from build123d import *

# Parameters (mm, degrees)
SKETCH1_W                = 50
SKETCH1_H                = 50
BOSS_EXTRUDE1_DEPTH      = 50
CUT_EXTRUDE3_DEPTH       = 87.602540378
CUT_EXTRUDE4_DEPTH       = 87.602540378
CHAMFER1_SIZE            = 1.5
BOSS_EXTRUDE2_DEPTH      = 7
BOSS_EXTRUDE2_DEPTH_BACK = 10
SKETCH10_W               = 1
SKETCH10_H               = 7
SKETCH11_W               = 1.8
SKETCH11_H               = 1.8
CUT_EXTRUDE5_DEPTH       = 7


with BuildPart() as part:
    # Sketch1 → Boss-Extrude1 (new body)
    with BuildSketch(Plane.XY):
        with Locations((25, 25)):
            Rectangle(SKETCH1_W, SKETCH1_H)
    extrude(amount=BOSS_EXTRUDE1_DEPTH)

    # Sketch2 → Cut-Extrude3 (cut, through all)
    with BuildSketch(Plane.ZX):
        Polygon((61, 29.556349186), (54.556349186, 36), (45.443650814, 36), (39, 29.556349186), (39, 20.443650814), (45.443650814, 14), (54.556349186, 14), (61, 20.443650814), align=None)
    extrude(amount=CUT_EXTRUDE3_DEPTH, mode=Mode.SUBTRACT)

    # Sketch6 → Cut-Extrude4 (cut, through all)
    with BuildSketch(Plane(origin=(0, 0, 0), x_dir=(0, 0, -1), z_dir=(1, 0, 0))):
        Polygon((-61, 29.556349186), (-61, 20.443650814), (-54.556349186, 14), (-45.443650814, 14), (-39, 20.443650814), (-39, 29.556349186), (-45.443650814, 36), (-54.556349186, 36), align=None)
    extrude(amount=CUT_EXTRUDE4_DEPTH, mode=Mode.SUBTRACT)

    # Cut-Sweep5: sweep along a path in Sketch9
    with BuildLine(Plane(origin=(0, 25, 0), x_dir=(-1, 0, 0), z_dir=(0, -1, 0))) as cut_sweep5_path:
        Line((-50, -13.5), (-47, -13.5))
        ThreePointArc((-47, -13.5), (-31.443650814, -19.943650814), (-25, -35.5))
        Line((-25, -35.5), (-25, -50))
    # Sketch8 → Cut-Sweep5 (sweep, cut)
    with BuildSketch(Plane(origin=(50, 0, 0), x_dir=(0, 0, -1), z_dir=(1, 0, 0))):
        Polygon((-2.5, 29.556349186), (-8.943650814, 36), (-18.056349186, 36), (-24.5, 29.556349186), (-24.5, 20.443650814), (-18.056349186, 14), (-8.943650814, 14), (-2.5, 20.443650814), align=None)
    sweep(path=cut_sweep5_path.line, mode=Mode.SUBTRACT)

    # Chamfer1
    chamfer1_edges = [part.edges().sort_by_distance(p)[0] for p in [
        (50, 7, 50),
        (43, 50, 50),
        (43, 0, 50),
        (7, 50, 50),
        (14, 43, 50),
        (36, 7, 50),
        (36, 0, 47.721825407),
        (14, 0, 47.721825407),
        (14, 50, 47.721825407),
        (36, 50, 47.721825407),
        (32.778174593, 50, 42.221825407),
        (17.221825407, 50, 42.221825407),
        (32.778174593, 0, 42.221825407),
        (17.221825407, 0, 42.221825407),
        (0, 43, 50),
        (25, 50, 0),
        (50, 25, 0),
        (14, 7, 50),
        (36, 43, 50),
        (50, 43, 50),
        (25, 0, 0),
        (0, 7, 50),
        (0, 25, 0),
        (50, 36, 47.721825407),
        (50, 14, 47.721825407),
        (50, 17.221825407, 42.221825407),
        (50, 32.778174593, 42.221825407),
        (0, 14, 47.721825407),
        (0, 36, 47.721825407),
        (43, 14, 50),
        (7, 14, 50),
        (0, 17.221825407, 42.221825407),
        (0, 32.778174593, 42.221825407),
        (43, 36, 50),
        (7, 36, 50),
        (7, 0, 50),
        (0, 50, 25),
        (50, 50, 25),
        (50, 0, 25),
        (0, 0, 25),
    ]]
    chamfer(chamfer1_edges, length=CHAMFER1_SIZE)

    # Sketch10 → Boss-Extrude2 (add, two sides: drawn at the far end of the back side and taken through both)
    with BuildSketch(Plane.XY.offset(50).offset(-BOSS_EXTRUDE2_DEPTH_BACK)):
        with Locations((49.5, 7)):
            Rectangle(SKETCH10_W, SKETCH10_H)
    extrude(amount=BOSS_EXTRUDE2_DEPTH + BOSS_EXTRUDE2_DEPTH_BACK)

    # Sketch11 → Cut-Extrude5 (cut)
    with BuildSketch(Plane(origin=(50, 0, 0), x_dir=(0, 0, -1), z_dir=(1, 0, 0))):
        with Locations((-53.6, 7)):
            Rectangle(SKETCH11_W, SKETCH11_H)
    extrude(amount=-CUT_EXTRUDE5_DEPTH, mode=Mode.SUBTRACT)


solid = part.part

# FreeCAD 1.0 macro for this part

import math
import FreeCAD as App
import Part
import Sketcher

V = App.Vector
Q = App.Units.Quantity


def edges_at(feature, points):
    """Names of the edges that pass closest to the given points."""
    edges = feature.Shape.Edges
    near = lambda p: min(range(len(edges)), key=lambda i: edges[i].distToShape(Part.Vertex(*p))[0])
    return sorted({f"Edge{near(p) + 1}" for p in points})

doc = App.newDocument("Part")
params = doc.addObject("Spreadsheet::Sheet", "Params")
for row, (alias, value) in enumerate([
    ("sketch1_width", "50 mm"),
    ("pad1_length", "50 mm"),
    ("sketch5_radius", "22 mm"),
    ("sketch5_width", "3 mm"),
    ("sketch5_height", "14.5 mm"),
    ("chamfer_size", "1.5 mm"),
    ("sketch6_width", "1 mm"),
    ("sketch6_height", "7 mm"),
    ("pad2_length", "7 mm"),
    ("pad2_length2", "10 mm"),
    ("sketch7_width", "1.8 mm"),
    ("pocket3_length", "7 mm"),
], start=1):
    params.set(f"A{row}", alias)
    params.set(f"B{row}", "=" + value)
    params.setAlias(f"B{row}", alias)

body = doc.addObject("PartDesign::Body", "Body")

sketch1 = doc.addObject("Sketcher::SketchObject", "Sketch")
body.addObject(sketch1)
sketch1.AttachmentSupport = (doc.XY_Plane, [""])
sketch1.MapMode = "FlatFace"
sketch1.addGeometry([
    Part.LineSegment(V(0, 50, 0), V(0, 0, 0)),
    Part.LineSegment(V(0, 0, 0), V(50, 0, 0)),
    Part.LineSegment(V(50, 0, 0), V(50, 50, 0)),
    Part.LineSegment(V(50, 50, 0), V(0, 50, 0)),
], False)
sketch1.addConstraint([
    Sketcher.Constraint("Coincident", 0, 2, 1, 1),
    Sketcher.Constraint("Coincident", 1, 2, 2, 1),
    Sketcher.Constraint("Coincident", 2, 2, 3, 1),
    Sketcher.Constraint("Coincident", 3, 2, 0, 1),
    Sketcher.Constraint("Vertical", 0),
    Sketcher.Constraint("Horizontal", 1),
    Sketcher.Constraint("Vertical", 2),
    Sketcher.Constraint("Horizontal", 3),
    Sketcher.Constraint("Coincident", 0, 2, -1, 1),
    Sketcher.Constraint("Equal", 3, 0),
    Sketcher.Constraint("DistanceX", 1, 1, 1, 2, Q("50 mm")),
])
sketch1.setExpression("Constraints[10]", "Params.sketch1_width")
pad1 = doc.addObject("PartDesign::Pad", "Pad")
body.addObject(pad1)
pad1.Profile = sketch1
pad1.setExpression("Length", "Params.pad1_length")

sketch2 = doc.addObject("Sketcher::SketchObject", "Sketch001")
body.addObject(sketch2)
sketch2.AttachmentSupport = (doc.XZ_Plane, [""])
sketch2.MapMode = "FlatFace"
sketch2.addGeometry([
    Part.LineSegment(V(29.556349, 61, 0), V(36, 54.556349, 0)),
    Part.LineSegment(V(36, 54.556349, 0), V(36, 45.443651, 0)),
    Part.LineSegment(V(36, 45.443651, 0), V(29.556349, 39, 0)),
    Part.LineSegment(V(29.556349, 39, 0), V(20.443651, 39, 0)),
    Part.LineSegment(V(20.443651, 39, 0), V(14, 45.443651, 0)),
    Part.LineSegment(V(14, 45.443651, 0), V(14, 54.556349, 0)),
    Part.LineSegment(V(14, 54.556349, 0), V(20.443651, 61, 0)),
    Part.LineSegment(V(20.443651, 61, 0), V(29.556349, 61, 0)),
], False)
sketch2.addConstraint([
    Sketcher.Constraint("Coincident", 0, 2, 1, 1),
    Sketcher.Constraint("Coincident", 1, 2, 2, 1),
    Sketcher.Constraint("Coincident", 2, 2, 3, 1),
    Sketcher.Constraint("Coincident", 3, 2, 4, 1),
    Sketcher.Constraint("Coincident", 4, 2, 5, 1),
    Sketcher.Constraint("Coincident", 5, 2, 6, 1),
    Sketcher.Constraint("Coincident", 6, 2, 7, 1),
    Sketcher.Constraint("Coincident", 7, 2, 0, 1),
    Sketcher.Constraint("Vertical", 1),
    Sketcher.Constraint("Horizontal", 3),
    Sketcher.Constraint("Vertical", 5),
    Sketcher.Constraint("Horizontal", 7),
    Sketcher.Constraint("Perpendicular", 0, 2),
    Sketcher.Constraint("Perpendicular", 2, 4),
    Sketcher.Constraint("Perpendicular", 4, 6),
    Sketcher.Constraint("Horizontal", 1, 2, 4, 2),
    Sketcher.Constraint("Horizontal", 0, 2, 5, 2),
    Sketcher.Constraint("Vertical", 3, 2, 6, 2),
    Sketcher.Constraint("Vertical", 2, 2, 7, 2),
    Sketcher.Constraint("Equal", 7, 1),
    Sketcher.Constraint("DistanceX", -1, 1, 0, 2, Q("36 mm")),
    Sketcher.Constraint("DistanceY", -1, 1, 2, 2, Q("39 mm")),
    Sketcher.Constraint("DistanceX", -1, 1, 4, 2, Q("14 mm")),
    Sketcher.Constraint("DistanceX", 3, 2, 3, 1, Q("9.112698 mm")),
])
pocket1 = doc.addObject("PartDesign::Pocket", "Pocket")
body.addObject(pocket1)
pocket1.Profile = sketch2
pocket1.Type = "ThroughAll"

sketch3 = doc.addObject("Sketcher::SketchObject", "Sketch002")
body.addObject(sketch3)
sketch3.AttachmentSupport = (doc.YZ_Plane, [""])
sketch3.MapMode = "FlatFace"
sketch3.addGeometry([
    Part.LineSegment(V(29.556349, 61, 0), V(20.443651, 61, 0)),
    Part.LineSegment(V(20.443651, 61, 0), V(14, 54.556349, 0)),
    Part.LineSegment(V(14, 54.556349, 0), V(14, 45.443651, 0)),
    Part.LineSegment(V(14, 45.443651, 0), V(20.443651, 39, 0)),
    Part.LineSegment(V(20.443651, 39, 0), V(29.556349, 39, 0)),
    Part.LineSegment(V(29.556349, 39, 0), V(36, 45.443651, 0)),
    Part.LineSegment(V(36, 45.443651, 0), V(36, 54.556349, 0)),
    Part.LineSegment(V(36, 54.556349, 0), V(29.556349, 61, 0)),
], False)
sketch3.addConstraint([
    Sketcher.Constraint("Coincident", 0, 2, 1, 1),
    Sketcher.Constraint("Coincident", 1, 2, 2, 1),
    Sketcher.Constraint("Coincident", 2, 2, 3, 1),
    Sketcher.Constraint("Coincident", 3, 2, 4, 1),
    Sketcher.Constraint("Coincident", 4, 2, 5, 1),
    Sketcher.Constraint("Coincident", 5, 2, 6, 1),
    Sketcher.Constraint("Coincident", 6, 2, 7, 1),
    Sketcher.Constraint("Coincident", 7, 2, 0, 1),
    Sketcher.Constraint("Horizontal", 0),
    Sketcher.Constraint("Vertical", 2),
    Sketcher.Constraint("Horizontal", 4),
    Sketcher.Constraint("Vertical", 6),
    Sketcher.Constraint("Perpendicular", 1, 3),
    Sketcher.Constraint("Perpendicular", 3, 5),
    Sketcher.Constraint("Perpendicular", 5, 7),
    Sketcher.Constraint("Horizontal", 2, 2, 5, 2),
    Sketcher.Constraint("Horizontal", 1, 2, 6, 2),
    Sketcher.Constraint("Vertical", 0, 2, 3, 2),
    Sketcher.Constraint("Vertical", 4, 2, 7, 2),
    Sketcher.Constraint("Equal", 4, 2),
    Sketcher.Constraint("DistanceY", -1, 1, 0, 2, Q("61 mm")),
    Sketcher.Constraint("DistanceX", -1, 1, 1, 2, Q("14 mm")),
    Sketcher.Constraint("DistanceY", -1, 1, 3, 2, Q("39 mm")),
    Sketcher.Constraint("DistanceX", 0, 2, 0, 1, Q("9.112698 mm")),
])
pocket2 = doc.addObject("PartDesign::Pocket", "Pocket001")
body.addObject(pocket2)
pocket2.Profile = sketch3
pocket2.Type = "ThroughAll"
pocket2.Reversed = True

sketch4 = doc.addObject("Sketcher::SketchObject", "Sketch003")
body.addObject(sketch4)
sketch4.AttachmentSupport = (doc.YZ_Plane, [""])
sketch4.MapMode = "FlatFace"
sketch4.AttachmentOffset = App.Placement(V(0, 0, 50), App.Rotation())
sketch4.addGeometry([
    Part.LineSegment(V(29.556349, 2.5, 0), V(36, 8.943651, 0)),
    Part.LineSegment(V(36, 8.943651, 0), V(36, 18.056349, 0)),
    Part.LineSegment(V(36, 18.056349, 0), V(29.556349, 24.5, 0)),
    Part.LineSegment(V(29.556349, 24.5, 0), V(20.443651, 24.5, 0)),
    Part.LineSegment(V(20.443651, 24.5, 0), V(14, 18.056349, 0)),
    Part.LineSegment(V(14, 18.056349, 0), V(14, 8.943651, 0)),
    Part.LineSegment(V(14, 8.943651, 0), V(20.443651, 2.5, 0)),
    Part.LineSegment(V(20.443651, 2.5, 0), V(29.556349, 2.5, 0)),
], False)
sketch4.addConstraint([
    Sketcher.Constraint("Coincident", 0, 2, 1, 1),
    Sketcher.Constraint("Coincident", 1, 2, 2, 1),
    Sketcher.Constraint("Coincident", 2, 2, 3, 1),
    Sketcher.Constraint("Coincident", 3, 2, 4, 1),
    Sketcher.Constraint("Coincident", 4, 2, 5, 1),
    Sketcher.Constraint("Coincident", 5, 2, 6, 1),
    Sketcher.Constraint("Coincident", 6, 2, 7, 1),
    Sketcher.Constraint("Coincident", 7, 2, 0, 1),
    Sketcher.Constraint("Vertical", 1),
    Sketcher.Constraint("Horizontal", 3),
    Sketcher.Constraint("Vertical", 5),
    Sketcher.Constraint("Horizontal", 7),
    Sketcher.Constraint("Perpendicular", 0, 2),
    Sketcher.Constraint("Perpendicular", 2, 4),
    Sketcher.Constraint("Perpendicular", 4, 6),
    Sketcher.Constraint("Horizontal", 1, 2, 4, 2),
    Sketcher.Constraint("Horizontal", 0, 2, 5, 2),
    Sketcher.Constraint("Vertical", 3, 2, 6, 2),
    Sketcher.Constraint("Vertical", 2, 2, 7, 2),
    Sketcher.Constraint("Equal", 7, 1),
    Sketcher.Constraint("DistanceX", -1, 1, 0, 2, Q("36 mm")),
    Sketcher.Constraint("DistanceX", -1, 1, 4, 2, Q("14 mm")),
    Sketcher.Constraint("DistanceY", -1, 1, 2, 2, Q("24.5 mm")),
    Sketcher.Constraint("DistanceX", 3, 2, 3, 1, Q("9.112698 mm")),
])

sketch5 = doc.addObject("Sketcher::SketchObject", "Sketch004")
body.addObject(sketch5)
sketch5.AttachmentSupport = (doc.XZ_Plane, [""])
sketch5.MapMode = "FlatFace"
sketch5.AttachmentOffset = App.Placement(V(0, 0, -25), App.Rotation())
sketch5.addGeometry([
    Part.LineSegment(V(50, 13.5, 0), V(47, 13.5, 0)),
    Part.ArcOfCircle(Part.Circle(V(47, 35.5, 0), V(0, 0, 1), 22), math.radians(180), math.radians(270)),
    Part.LineSegment(V(25, 35.5, 0), V(25, 50, 0)),
], False)
sketch5.addConstraint([
    Sketcher.Constraint("Tangent", 0, 2, 1, 2),
    Sketcher.Constraint("Tangent", 1, 1, 2, 1),
    Sketcher.Constraint("Horizontal", 0),
    Sketcher.Constraint("Vertical", 2),
    Sketcher.Constraint("Radius", 1, Q("22 mm")),
    Sketcher.Constraint("DistanceX", 0, 2, 0, 1, Q("3 mm")),
    Sketcher.Constraint("DistanceY", 2, 1, 2, 2, Q("14.5 mm")),
    Sketcher.Constraint("DistanceX", -1, 1, 1, 3, Q("47 mm")),
    Sketcher.Constraint("DistanceY", -1, 1, 2, 2, Q("50 mm")),
])
sketch5.setExpression("Constraints[4]", "Params.sketch5_radius")
sketch5.setExpression("Constraints[5]", "Params.sketch5_width")
sketch5.setExpression("Constraints[6]", "Params.sketch5_height")
doc.recompute()

subtractivepipe = doc.addObject("PartDesign::SubtractivePipe", "SubtractivePipe")
body.addObject(subtractivepipe)
subtractivepipe.Profile = sketch4
subtractivepipe.Spine = (sketch5, ["Edge1", "Edge2", "Edge3"])
doc.recompute()

chamfer = doc.addObject("PartDesign::Chamfer", "Chamfer")
body.addObject(chamfer)
chamfer.Base = (subtractivepipe, edges_at(subtractivepipe, [
    (50, 7, 50),
    (43, 50, 50),
    (43, 0, 50),
    (7, 50, 50),
    (14, 43, 50),
    (36, 7, 50),
    (36, 0, 47.722),
    (14, 0, 47.722),
    (14, 50, 47.722),
    (36, 50, 47.722),
    (32.778, 50, 42.222),
    (17.222, 50, 42.222),
    (32.778, 0, 42.222),
    (17.222, 0, 42.222),
    (0, 43, 50),
    (25, 50, 0),
    (50, 25, 0),
    (14, 7, 50),
    (36, 43, 50),
    (50, 43, 50),
    (25, 0, 0),
    (0, 7, 50),
    (0, 25, 0),
    (50, 36, 47.722),
    (50, 14, 47.722),
    (50, 17.222, 42.222),
    (50, 32.778, 42.222),
    (0, 14, 47.722),
    (0, 36, 47.722),
    (43, 14, 50),
    (7, 14, 50),
    (0, 17.222, 42.222),
    (0, 32.778, 42.222),
    (43, 36, 50),
    (7, 36, 50),
    (7, 0, 50),
    (0, 50, 25),
    (50, 50, 25),
    (50, 0, 25),
    (0, 0, 25),
]))
chamfer.setExpression("Size", "Params.chamfer_size")

sketch6 = doc.addObject("Sketcher::SketchObject", "Sketch005")
body.addObject(sketch6)
sketch6.AttachmentSupport = (doc.XY_Plane, [""])
sketch6.MapMode = "FlatFace"
sketch6.AttachmentOffset = App.Placement(V(0, 0, 50), App.Rotation())
sketch6.addGeometry([
    Part.LineSegment(V(49, 10.5, 0), V(49, 3.5, 0)),
    Part.LineSegment(V(49, 3.5, 0), V(50, 3.5, 0)),
    Part.LineSegment(V(50, 3.5, 0), V(50, 10.5, 0)),
    Part.LineSegment(V(50, 10.5, 0), V(49, 10.5, 0)),
], False)
sketch6.addConstraint([
    Sketcher.Constraint("Coincident", 0, 2, 1, 1),
    Sketcher.Constraint("Coincident", 1, 2, 2, 1),
    Sketcher.Constraint("Coincident", 2, 2, 3, 1),
    Sketcher.Constraint("Coincident", 3, 2, 0, 1),
    Sketcher.Constraint("Vertical", 0),
    Sketcher.Constraint("Horizontal", 1),
    Sketcher.Constraint("Vertical", 2),
    Sketcher.Constraint("Horizontal", 3),
    Sketcher.Constraint("DistanceX", 1, 1, 1, 2, Q("1 mm")),
    Sketcher.Constraint("DistanceY", 0, 2, 0, 1, Q("7 mm")),
    Sketcher.Constraint("DistanceX", -1, 1, 0, 2, Q("49 mm")),
    Sketcher.Constraint("DistanceY", -1, 1, 0, 2, Q("3.5 mm")),
])
sketch6.setExpression("Constraints[8]", "Params.sketch6_width")
sketch6.setExpression("Constraints[9]", "Params.sketch6_height")
pad2 = doc.addObject("PartDesign::Pad", "Pad001")
body.addObject(pad2)
pad2.Profile = sketch6
pad2.Type = "TwoLengths"
pad2.setExpression("Length", "Params.pad2_length")
pad2.setExpression("Length2", "Params.pad2_length2")

sketch7 = doc.addObject("Sketcher::SketchObject", "Sketch006")
body.addObject(sketch7)
sketch7.AttachmentSupport = (doc.YZ_Plane, [""])
sketch7.MapMode = "FlatFace"
sketch7.AttachmentOffset = App.Placement(V(0, 0, 50), App.Rotation())
sketch7.addGeometry([
    Part.LineSegment(V(7.9, 54.5, 0), V(6.1, 54.5, 0)),
    Part.LineSegment(V(6.1, 54.5, 0), V(6.1, 52.7, 0)),
    Part.LineSegment(V(6.1, 52.7, 0), V(7.9, 52.7, 0)),
    Part.LineSegment(V(7.9, 52.7, 0), V(7.9, 54.5, 0)),
], False)
sketch7.addConstraint([
    Sketcher.Constraint("Coincident", 0, 2, 1, 1),
    Sketcher.Constraint("Coincident", 1, 2, 2, 1),
    Sketcher.Constraint("Coincident", 2, 2, 3, 1),
    Sketcher.Constraint("Coincident", 3, 2, 0, 1),
    Sketcher.Constraint("Horizontal", 0),
    Sketcher.Constraint("Vertical", 1),
    Sketcher.Constraint("Horizontal", 2),
    Sketcher.Constraint("Vertical", 3),
    Sketcher.Constraint("Equal", 2, 1),
    Sketcher.Constraint("DistanceX", 0, 2, 0, 1, Q("1.8 mm")),
    Sketcher.Constraint("DistanceX", -1, 1, 0, 2, Q("6.1 mm")),
    Sketcher.Constraint("DistanceY", -1, 1, 0, 2, Q("54.5 mm")),
])
sketch7.setExpression("Constraints[9]", "Params.sketch7_width")
pocket3 = doc.addObject("PartDesign::Pocket", "Pocket002")
body.addObject(pocket3)
pocket3.Profile = sketch7
pocket3.setExpression("Length", "Params.pocket3_length")

doc.recompute()
